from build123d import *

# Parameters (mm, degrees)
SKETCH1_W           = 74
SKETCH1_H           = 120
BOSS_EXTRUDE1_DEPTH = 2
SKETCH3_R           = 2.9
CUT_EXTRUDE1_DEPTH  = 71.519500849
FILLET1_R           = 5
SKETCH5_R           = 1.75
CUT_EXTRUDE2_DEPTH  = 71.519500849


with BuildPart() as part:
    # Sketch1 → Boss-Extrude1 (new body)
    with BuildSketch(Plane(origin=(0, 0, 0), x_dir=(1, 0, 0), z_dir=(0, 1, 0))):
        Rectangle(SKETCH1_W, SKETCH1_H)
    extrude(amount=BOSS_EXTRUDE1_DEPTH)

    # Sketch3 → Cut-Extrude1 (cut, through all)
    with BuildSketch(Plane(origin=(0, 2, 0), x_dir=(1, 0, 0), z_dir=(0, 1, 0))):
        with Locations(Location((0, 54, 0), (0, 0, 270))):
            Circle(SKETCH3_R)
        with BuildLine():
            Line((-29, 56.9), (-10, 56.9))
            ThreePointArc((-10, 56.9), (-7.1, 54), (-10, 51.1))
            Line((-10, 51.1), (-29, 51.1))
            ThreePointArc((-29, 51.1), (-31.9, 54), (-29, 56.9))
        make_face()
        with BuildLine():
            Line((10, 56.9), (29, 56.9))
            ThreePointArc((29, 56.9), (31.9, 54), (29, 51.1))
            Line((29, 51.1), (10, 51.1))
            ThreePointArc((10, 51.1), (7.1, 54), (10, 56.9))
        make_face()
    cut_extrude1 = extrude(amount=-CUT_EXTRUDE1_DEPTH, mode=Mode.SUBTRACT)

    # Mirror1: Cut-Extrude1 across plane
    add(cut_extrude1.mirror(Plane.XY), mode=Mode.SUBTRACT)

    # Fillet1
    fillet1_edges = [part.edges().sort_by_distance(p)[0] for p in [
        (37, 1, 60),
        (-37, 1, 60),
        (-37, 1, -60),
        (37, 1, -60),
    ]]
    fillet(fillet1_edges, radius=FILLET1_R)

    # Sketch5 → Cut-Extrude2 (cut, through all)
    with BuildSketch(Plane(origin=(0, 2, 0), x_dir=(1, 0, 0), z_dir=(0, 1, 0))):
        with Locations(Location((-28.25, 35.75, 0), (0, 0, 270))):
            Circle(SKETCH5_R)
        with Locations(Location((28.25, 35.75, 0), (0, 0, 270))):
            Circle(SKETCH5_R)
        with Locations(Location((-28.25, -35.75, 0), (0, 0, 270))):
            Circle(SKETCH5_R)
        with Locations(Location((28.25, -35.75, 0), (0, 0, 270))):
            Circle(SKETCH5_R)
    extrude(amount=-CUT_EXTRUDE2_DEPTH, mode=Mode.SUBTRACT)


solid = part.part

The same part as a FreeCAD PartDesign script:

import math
import FreeCAD as App
import Part
import Sketcher
from FreeCAD import Vector
Q = App.Units.Quantity


def edges_at(feature, points):
    """Names of the edges that pass closest to the given points."""
    edges = feature.Shape.Edges
    near = lambda p: min(range(len(edges)), key=lambda i: edges[i].distToShape(Part.Vertex(*p))[0])
    return sorted({f"Edge{near(p) + 1}" for p in points})

doc = App.newDocument("Part")
params = doc.addObject("Spreadsheet::Sheet", "Params")
for row, (alias, value) in enumerate([
    ("sketch1_width", "74 mm"),
    ("sketch1_height", "120 mm"),
    ("pad1_length", "2 mm"),
    ("sketch2_diameter", "5.8 mm"),
    ("sketch2_width", "19 mm"),
    ("fillet_radius", "5 mm"),
    ("sketch3_diameter", "3.5 mm"),
], start=1):
    params.set(f"A{row}", alias)
    params.set(f"B{row}", "=" + value)
    params.setAlias(f"B{row}", alias)

body = doc.addObject("PartDesign::Body", "Body")

# Sketch on XZ plane
sketch1 = body.newObject("Sketcher::SketchObject", "Sketch")
sketch1.AttachmentSupport = (doc.getObject("XZ_Plane"), [""])
sketch1.MapMode = "FlatFace"
sketch1.addGeometry(Part.LineSegment(Vector(-37, -60, 0), Vector(-37, 60, 0)), False)
sketch1.addGeometry(Part.LineSegment(Vector(-37, 60, 0), Vector(37, 60, 0)), False)
sketch1.addGeometry(Part.LineSegment(Vector(37, 60, 0), Vector(37, -60, 0)), False)
sketch1.addGeometry(Part.LineSegment(Vector(37, -60, 0), Vector(-37, -60, 0)), False)
sketch1.addConstraint(Sketcher.Constraint("Coincident", 0, 2, 1, 1))
sketch1.addConstraint(Sketcher.Constraint("Coincident", 1, 2, 2, 1))
sketch1.addConstraint(Sketcher.Constraint("Coincident", 2, 2, 3, 1))
sketch1.addConstraint(Sketcher.Constraint("Coincident", 3, 2, 0, 1))
sketch1.addConstraint(Sketcher.Constraint("Vertical", 0))
sketch1.addConstraint(Sketcher.Constraint("Horizontal", 1))
sketch1.addConstraint(Sketcher.Constraint("Vertical", 2))
sketch1.addConstraint(Sketcher.Constraint("Horizontal", 3))
sketch1.addConstraint(Sketcher.Constraint("Symmetric", 0, 2, 2, 2, -1, 1))
sketch1.addConstraint(Sketcher.Constraint("DistanceX", 1, 1, 1, 2, Q("74 mm")))
sketch1.addConstraint(Sketcher.Constraint("DistanceY", 0, 1, 0, 2, Q("120 mm")))
sketch1.setExpression("Constraints[9]", "Params.sketch1_width")
sketch1.setExpression("Constraints[10]", "Params.sketch1_height")
pad1 = body.newObject("PartDesign::Pad", "Pad")
pad1.Profile = sketch1
pad1.setExpression("Length", "Params.pad1_length")
pad1.Reversed = True

# Sketch on XZ plane
sketch2 = body.newObject("Sketcher::SketchObject", "Sketch001")
sketch2.AttachmentSupport = (doc.getObject("XZ_Plane"), [""])
sketch2.MapMode = "FlatFace"
sketch2.AttachmentOffset = App.Placement(Vector(0, 0, -2), App.Rotation())
sketch2.addGeometry(Part.Circle(Vector(0, -54, 0), Vector(0, 0, 1), 2.9), False)
sketch2.addGeometry(Part.LineSegment(Vector(-10, -56.9, 0), Vector(-29, -56.9, 0)), False)
sketch2.addGeometry(Part.ArcOfCircle(Part.Circle(Vector(-29, -54, 0), Vector(0, 0, 1), 2.9), math.radians(90), math.radians(270)), False)
sketch2.addGeometry(Part.LineSegment(Vector(-29, -51.1, 0), Vector(-10, -51.1, 0)), False)
sketch2.addGeometry(Part.ArcOfCircle(Part.Circle(Vector(-10, -54, 0), Vector(0, 0, 1), 2.9), math.radians(-90), math.radians(90)), False)
sketch2.addGeometry(Part.LineSegment(Vector(29, -56.9, 0), Vector(10, -56.9, 0)), False)
sketch2.addGeometry(Part.ArcOfCircle(Part.Circle(Vector(10, -54, 0), Vector(0, 0, 1), 2.9), math.radians(90), math.radians(270)), False)
sketch2.addGeometry(Part.LineSegment(Vector(10, -51.1, 0), Vector(29, -51.1, 0)), False)
sketch2.addGeometry(Part.ArcOfCircle(Part.Circle(Vector(29, -54, 0), Vector(0, 0, 1), 2.9), math.radians(-90), math.radians(90)), False)
sketch2.addConstraint(Sketcher.Constraint("Tangent", 1, 2, 2, 2))
sketch2.addConstraint(Sketcher.Constraint("Tangent", 2, 1, 3, 1))
sketch2.addConstraint(Sketcher.Constraint("Tangent", 3, 2, 4, 2))
sketch2.addConstraint(Sketcher.Constraint("Tangent", 4, 1, 1, 1))
sketch2.addConstraint(Sketcher.Constraint("Tangent", 5, 2, 6, 2))
sketch2.addConstraint(Sketcher.Constraint("Tangent", 6, 1, 7, 1))
sketch2.addConstraint(Sketcher.Constraint("Tangent", 7, 2, 8, 2))
sketch2.addConstraint(Sketcher.Constraint("Tangent", 8, 1, 5, 1))
sketch2.addConstraint(Sketcher.Constraint("Horizontal", 1))
sketch2.addConstraint(Sketcher.Constraint("Horizontal", 3))
sketch2.addConstraint(Sketcher.Constraint("Horizontal", 5))
sketch2.addConstraint(Sketcher.Constraint("Horizontal", 7))
sketch2.addConstraint(Sketcher.Constraint("Equal", 0, 2))
sketch2.addConstraint(Sketcher.Constraint("Equal", 4, 6))
sketch2.addConstraint(Sketcher.Constraint("Symmetric", 4, 3, 6, 3, -2))
sketch2.addConstraint(Sketcher.Constraint("PointOnObject", 0, 3, -2))
sketch2.addConstraint(Sketcher.Constraint("Horizontal", 0, 3, 2, 3))
sketch2.addConstraint(Sketcher.Constraint("Equal", 3, 5))
sketch2.addConstraint(Sketcher.Constraint("Diameter", 0, Q("5.8 mm")))
sketch2.addConstraint(Sketcher.Constraint("DistanceX", 1, 2, 1, 1, Q("19 mm")))
sketch2.addConstraint(Sketcher.Constraint("DistanceY", 0, 3, -1, 1, Q("54 mm")))
sketch2.addConstraint(Sketcher.Constraint("DistanceX", 2, 3, -1, 1, Q("29 mm")))
sketch2.setExpression("Constraints[18]", "Params.sketch2_diameter")
sketch2.setExpression("Constraints[19]", "Params.sketch2_width")
pocket1 = body.newObject("PartDesign::Pocket", "Pocket")
pocket1.Profile = sketch2
pocket1.Type = "ThroughAll"
pocket1.Reversed = True
doc.recompute()

mirrored = body.newObject("PartDesign::Mirrored", "Mirrored")
mirrored.Originals = [pocket1]
mirrored.MirrorPlane = (doc.getObject("XY_Plane"), [""])
body.Tip = mirrored
doc.recompute()

fillet = body.newObject("PartDesign::Fillet", "Fillet")
fillet.Base = (mirrored, edges_at(mirrored, [
    (37, 1, 60),
    (-37, 1, 60),
    (-37, 1, -60),
    (37, 1, -60),
]))
fillet.setExpression("Radius", "Params.fillet_radius")

# Sketch on XZ plane
sketch3 = body.newObject("Sketcher::SketchObject", "Sketch002")
sketch3.AttachmentSupport = (doc.getObject("XZ_Plane"), [""])
sketch3.MapMode = "FlatFace"
sketch3.AttachmentOffset = App.Placement(Vector(0, 0, -2), App.Rotation())
sketch3.addGeometry(Part.Circle(Vector(-28.25, -35.75, 0), Vector(0, 0, 1), 1.75), False)
sketch3.addGeometry(Part.Circle(Vector(28.25, -35.75, 0), Vector(0, 0, 1), 1.75), False)
sketch3.addGeometry(Part.Circle(Vector(-28.25, 35.75, 0), Vector(0, 0, 1), 1.75), False)
sketch3.addGeometry(Part.Circle(Vector(28.25, 35.75, 0), Vector(0, 0, 1), 1.75), False)
sketch3.addConstraint(Sketcher.Constraint("Equal", 0, 1))
sketch3.addConstraint(Sketcher.Constraint("Equal", 1, 2))
sketch3.addConstraint(Sketcher.Constraint("Equal", 2, 3))
sketch3.addConstraint(Sketcher.Constraint("Symmetric", 1, 3, 2, 3, -1, 1))
sketch3.addConstraint(Sketcher.Constraint("Symmetric", 0, 3, 3, 3, -1, 1))
sketch3.addConstraint(Sketcher.Constraint("Symmetric", 0, 3, 1, 3, -2))
sketch3.addConstraint(Sketcher.Constraint("Diameter", 0, Q("3.5 mm")))
sketch3.addConstraint(Sketcher.Constraint("DistanceX", 0, 3, 1, 3, Q("56.5 mm")))
sketch3.addConstraint(Sketcher.Constraint("DistanceY", 0, 3, 2, 3, Q("71.5 mm")))
sketch3.setExpression("Constraints[6]", "Params.sketch3_diameter")
pocket2 = body.newObject("PartDesign::Pocket", "Pocket001")
pocket2.Profile = sketch3
pocket2.Type = "ThroughAll"
pocket2.Reversed = True

doc.recompute()
